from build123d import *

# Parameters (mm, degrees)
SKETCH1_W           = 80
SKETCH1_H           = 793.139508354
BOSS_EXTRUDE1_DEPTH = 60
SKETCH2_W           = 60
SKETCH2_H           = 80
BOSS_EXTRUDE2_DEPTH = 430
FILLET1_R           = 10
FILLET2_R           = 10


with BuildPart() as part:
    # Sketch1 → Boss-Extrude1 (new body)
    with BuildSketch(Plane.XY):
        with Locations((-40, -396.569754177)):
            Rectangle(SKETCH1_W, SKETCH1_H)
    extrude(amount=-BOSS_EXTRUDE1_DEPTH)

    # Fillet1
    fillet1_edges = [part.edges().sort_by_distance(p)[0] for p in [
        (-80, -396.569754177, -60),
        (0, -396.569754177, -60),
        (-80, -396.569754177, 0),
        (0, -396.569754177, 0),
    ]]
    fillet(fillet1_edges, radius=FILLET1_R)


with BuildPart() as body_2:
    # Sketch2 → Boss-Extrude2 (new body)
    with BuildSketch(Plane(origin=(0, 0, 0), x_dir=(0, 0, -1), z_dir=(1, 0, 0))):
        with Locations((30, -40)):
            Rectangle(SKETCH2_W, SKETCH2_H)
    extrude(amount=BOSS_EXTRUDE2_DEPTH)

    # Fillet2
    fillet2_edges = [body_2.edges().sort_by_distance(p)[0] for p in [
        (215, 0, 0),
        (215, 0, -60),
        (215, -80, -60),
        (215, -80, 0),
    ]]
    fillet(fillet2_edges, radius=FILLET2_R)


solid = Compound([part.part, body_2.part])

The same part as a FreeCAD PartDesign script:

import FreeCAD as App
import Part
import Sketcher

V = App.Vector


def edges_at(feature, points):
    """Names of the edges that pass closest to the given points."""
    edges = feature.Shape.Edges
    near = lambda p: min(range(len(edges)), key=lambda i: edges[i].distToShape(Part.Vertex(*p))[0])
    return sorted({f"Edge{near(p) + 1}" for p in points})


def add_polygon(sketch, points):
    """Adds a closed chain of lines whose ends are joined by coincident constraints."""
    first, n = sketch.GeometryCount, len(points)
    for a, b in zip(points, points[1:] + points[:1]):
        sketch.addGeometry(Part.LineSegment(App.Vector(*a, 0), App.Vector(*b, 0)), False)
    for i in range(n):
        sketch.addConstraint(Sketcher.Constraint("Coincident", first + i, 2, first + (i + 1) % n, 1))

doc = App.newDocument("Part")
body = doc.addObject("PartDesign::Body", "Body")

sketch1 = body.newObject("Sketcher::SketchObject", "Sketch")
sketch1.AttachmentSupport = (doc.getObject("XY_Plane"), [""])
sketch1.MapMode = "FlatFace"
add_polygon(sketch1, [(-80, 0), (-80, -793), (0, -793), (0, 0)])
sketch1.addConstraint(Sketcher.Constraint("Vertical", 0))
sketch1.addConstraint(Sketcher.Constraint("Horizontal", 1))
sketch1.addConstraint(Sketcher.Constraint("Vertical", 2))
sketch1.addConstraint(Sketcher.Constraint("Horizontal", 3))
sketch1.addConstraint(Sketcher.Constraint("Coincident", 2, 2, -1, 1))
sketch1.addConstraint(Sketcher.Constraint("DistanceX", 1, 1, 1, 2, 80.0))
sketch1.addConstraint(Sketcher.Constraint("DistanceY", 0, 2, 0, 1, 793.139508))
pad1 = body.newObject("PartDesign::Pad", "Pad")
pad1.Profile = sketch1
pad1.Length = 60
pad1.Reversed = True
doc.recompute()

fillet = body.newObject("PartDesign::Fillet", "Fillet")
fillet.Base = (pad1, edges_at(pad1, [
    (-80, -396.57, -60),
    (0, -396.57, -60),
    (-80, -396.57, 0),
    (0, -396.57, 0),
]))
fillet.Radius = 10
body2 = doc.addObject("PartDesign::Body", "Body001")

sketch2 = body2.newObject("Sketcher::SketchObject", "Sketch001")
sketch2.AttachmentSupport = (doc.getObject("YZ_Plane001"), [""])
sketch2.MapMode = "FlatFace"
add_polygon(sketch2, [(0, 0), (-80, 0), (-80, -60), (0, -60)])
sketch2.addConstraint(Sketcher.Constraint("Horizontal", 0))
sketch2.addConstraint(Sketcher.Constraint("Vertical", 1))
sketch2.addConstraint(Sketcher.Constraint("Horizontal", 2))
sketch2.addConstraint(Sketcher.Constraint("Vertical", 3))
sketch2.addConstraint(Sketcher.Constraint("Coincident", 3, 2, -1, 1))
sketch2.addConstraint(Sketcher.Constraint("DistanceX", 0, 2, 0, 1, 80.0))
sketch2.addConstraint(Sketcher.Constraint("DistanceY", 1, 2, 1, 1, 60.0))
pad2 = body2.newObject("PartDesign::Pad", "Pad001")
pad2.Profile = sketch2
pad2.Length = 430
doc.recompute()

fillet2 = body2.newObject("PartDesign::Fillet", "Fillet001")
fillet2.Base = (pad2, edges_at(pad2, [
    (215, 0, 0),
    (215, 0, -60),
    (215, -80, -60),
    (215, -80, 0),
]))
fillet2.Radius = 10

doc.recompute()
